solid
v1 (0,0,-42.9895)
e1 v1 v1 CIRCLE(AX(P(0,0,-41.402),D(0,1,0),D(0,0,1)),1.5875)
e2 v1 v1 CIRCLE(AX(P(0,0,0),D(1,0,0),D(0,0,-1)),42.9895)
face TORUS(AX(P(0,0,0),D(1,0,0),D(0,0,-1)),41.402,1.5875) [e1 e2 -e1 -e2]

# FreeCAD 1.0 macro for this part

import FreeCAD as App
import Part
import Sketcher
Q = App.Units.Quantity

doc = App.newDocument("Part")
body = doc.addObject("PartDesign::Body", "Body")

# Sketch on XZ plane
sketch1 = body.newObject("Sketcher::SketchObject", "Sketch")
sketch1.AttachmentSupport = (doc.getObject("XZ_Plane"), [""])
sketch1.MapMode = "FlatFace"
sketch1.addGeometry(Part.Circle(App.Vector(0, -41.402, 0), App.Vector(0, 0, 1), 1.5875), False)
sketch1.addConstraint([
    Sketcher.Constraint("PointOnObject", 0, 3, -2),
    Sketcher.Constraint("Diameter", 0, Q("0.125 in")),
    Sketcher.Constraint("DistanceY", 0, 3, -1, 1, Q("1.63 in")),
])

# Sketch on YZ plane
sketch2 = body.newObject("Sketcher::SketchObject", "Sketch001")
sketch2.AttachmentSupport = (doc.getObject("YZ_Plane"), [""])
sketch2.MapMode = "FlatFace"
sketch2.addGeometry(Part.Circle(App.Vector(0, 0, 0), App.Vector(0, 0, 1), 41.402), False)
sketch2.addConstraint([
    Sketcher.Constraint("Coincident", 0, 3, -1, 1),
    Sketcher.Constraint("Diameter", 0, Q("3.26 in")),
])
doc.recompute()

additivepipe = body.newObject("PartDesign::AdditivePipe", "AdditivePipe")
additivepipe.Profile = sketch1
additivepipe.Spine = (sketch2, ["Edge1"])

doc.recompute()
